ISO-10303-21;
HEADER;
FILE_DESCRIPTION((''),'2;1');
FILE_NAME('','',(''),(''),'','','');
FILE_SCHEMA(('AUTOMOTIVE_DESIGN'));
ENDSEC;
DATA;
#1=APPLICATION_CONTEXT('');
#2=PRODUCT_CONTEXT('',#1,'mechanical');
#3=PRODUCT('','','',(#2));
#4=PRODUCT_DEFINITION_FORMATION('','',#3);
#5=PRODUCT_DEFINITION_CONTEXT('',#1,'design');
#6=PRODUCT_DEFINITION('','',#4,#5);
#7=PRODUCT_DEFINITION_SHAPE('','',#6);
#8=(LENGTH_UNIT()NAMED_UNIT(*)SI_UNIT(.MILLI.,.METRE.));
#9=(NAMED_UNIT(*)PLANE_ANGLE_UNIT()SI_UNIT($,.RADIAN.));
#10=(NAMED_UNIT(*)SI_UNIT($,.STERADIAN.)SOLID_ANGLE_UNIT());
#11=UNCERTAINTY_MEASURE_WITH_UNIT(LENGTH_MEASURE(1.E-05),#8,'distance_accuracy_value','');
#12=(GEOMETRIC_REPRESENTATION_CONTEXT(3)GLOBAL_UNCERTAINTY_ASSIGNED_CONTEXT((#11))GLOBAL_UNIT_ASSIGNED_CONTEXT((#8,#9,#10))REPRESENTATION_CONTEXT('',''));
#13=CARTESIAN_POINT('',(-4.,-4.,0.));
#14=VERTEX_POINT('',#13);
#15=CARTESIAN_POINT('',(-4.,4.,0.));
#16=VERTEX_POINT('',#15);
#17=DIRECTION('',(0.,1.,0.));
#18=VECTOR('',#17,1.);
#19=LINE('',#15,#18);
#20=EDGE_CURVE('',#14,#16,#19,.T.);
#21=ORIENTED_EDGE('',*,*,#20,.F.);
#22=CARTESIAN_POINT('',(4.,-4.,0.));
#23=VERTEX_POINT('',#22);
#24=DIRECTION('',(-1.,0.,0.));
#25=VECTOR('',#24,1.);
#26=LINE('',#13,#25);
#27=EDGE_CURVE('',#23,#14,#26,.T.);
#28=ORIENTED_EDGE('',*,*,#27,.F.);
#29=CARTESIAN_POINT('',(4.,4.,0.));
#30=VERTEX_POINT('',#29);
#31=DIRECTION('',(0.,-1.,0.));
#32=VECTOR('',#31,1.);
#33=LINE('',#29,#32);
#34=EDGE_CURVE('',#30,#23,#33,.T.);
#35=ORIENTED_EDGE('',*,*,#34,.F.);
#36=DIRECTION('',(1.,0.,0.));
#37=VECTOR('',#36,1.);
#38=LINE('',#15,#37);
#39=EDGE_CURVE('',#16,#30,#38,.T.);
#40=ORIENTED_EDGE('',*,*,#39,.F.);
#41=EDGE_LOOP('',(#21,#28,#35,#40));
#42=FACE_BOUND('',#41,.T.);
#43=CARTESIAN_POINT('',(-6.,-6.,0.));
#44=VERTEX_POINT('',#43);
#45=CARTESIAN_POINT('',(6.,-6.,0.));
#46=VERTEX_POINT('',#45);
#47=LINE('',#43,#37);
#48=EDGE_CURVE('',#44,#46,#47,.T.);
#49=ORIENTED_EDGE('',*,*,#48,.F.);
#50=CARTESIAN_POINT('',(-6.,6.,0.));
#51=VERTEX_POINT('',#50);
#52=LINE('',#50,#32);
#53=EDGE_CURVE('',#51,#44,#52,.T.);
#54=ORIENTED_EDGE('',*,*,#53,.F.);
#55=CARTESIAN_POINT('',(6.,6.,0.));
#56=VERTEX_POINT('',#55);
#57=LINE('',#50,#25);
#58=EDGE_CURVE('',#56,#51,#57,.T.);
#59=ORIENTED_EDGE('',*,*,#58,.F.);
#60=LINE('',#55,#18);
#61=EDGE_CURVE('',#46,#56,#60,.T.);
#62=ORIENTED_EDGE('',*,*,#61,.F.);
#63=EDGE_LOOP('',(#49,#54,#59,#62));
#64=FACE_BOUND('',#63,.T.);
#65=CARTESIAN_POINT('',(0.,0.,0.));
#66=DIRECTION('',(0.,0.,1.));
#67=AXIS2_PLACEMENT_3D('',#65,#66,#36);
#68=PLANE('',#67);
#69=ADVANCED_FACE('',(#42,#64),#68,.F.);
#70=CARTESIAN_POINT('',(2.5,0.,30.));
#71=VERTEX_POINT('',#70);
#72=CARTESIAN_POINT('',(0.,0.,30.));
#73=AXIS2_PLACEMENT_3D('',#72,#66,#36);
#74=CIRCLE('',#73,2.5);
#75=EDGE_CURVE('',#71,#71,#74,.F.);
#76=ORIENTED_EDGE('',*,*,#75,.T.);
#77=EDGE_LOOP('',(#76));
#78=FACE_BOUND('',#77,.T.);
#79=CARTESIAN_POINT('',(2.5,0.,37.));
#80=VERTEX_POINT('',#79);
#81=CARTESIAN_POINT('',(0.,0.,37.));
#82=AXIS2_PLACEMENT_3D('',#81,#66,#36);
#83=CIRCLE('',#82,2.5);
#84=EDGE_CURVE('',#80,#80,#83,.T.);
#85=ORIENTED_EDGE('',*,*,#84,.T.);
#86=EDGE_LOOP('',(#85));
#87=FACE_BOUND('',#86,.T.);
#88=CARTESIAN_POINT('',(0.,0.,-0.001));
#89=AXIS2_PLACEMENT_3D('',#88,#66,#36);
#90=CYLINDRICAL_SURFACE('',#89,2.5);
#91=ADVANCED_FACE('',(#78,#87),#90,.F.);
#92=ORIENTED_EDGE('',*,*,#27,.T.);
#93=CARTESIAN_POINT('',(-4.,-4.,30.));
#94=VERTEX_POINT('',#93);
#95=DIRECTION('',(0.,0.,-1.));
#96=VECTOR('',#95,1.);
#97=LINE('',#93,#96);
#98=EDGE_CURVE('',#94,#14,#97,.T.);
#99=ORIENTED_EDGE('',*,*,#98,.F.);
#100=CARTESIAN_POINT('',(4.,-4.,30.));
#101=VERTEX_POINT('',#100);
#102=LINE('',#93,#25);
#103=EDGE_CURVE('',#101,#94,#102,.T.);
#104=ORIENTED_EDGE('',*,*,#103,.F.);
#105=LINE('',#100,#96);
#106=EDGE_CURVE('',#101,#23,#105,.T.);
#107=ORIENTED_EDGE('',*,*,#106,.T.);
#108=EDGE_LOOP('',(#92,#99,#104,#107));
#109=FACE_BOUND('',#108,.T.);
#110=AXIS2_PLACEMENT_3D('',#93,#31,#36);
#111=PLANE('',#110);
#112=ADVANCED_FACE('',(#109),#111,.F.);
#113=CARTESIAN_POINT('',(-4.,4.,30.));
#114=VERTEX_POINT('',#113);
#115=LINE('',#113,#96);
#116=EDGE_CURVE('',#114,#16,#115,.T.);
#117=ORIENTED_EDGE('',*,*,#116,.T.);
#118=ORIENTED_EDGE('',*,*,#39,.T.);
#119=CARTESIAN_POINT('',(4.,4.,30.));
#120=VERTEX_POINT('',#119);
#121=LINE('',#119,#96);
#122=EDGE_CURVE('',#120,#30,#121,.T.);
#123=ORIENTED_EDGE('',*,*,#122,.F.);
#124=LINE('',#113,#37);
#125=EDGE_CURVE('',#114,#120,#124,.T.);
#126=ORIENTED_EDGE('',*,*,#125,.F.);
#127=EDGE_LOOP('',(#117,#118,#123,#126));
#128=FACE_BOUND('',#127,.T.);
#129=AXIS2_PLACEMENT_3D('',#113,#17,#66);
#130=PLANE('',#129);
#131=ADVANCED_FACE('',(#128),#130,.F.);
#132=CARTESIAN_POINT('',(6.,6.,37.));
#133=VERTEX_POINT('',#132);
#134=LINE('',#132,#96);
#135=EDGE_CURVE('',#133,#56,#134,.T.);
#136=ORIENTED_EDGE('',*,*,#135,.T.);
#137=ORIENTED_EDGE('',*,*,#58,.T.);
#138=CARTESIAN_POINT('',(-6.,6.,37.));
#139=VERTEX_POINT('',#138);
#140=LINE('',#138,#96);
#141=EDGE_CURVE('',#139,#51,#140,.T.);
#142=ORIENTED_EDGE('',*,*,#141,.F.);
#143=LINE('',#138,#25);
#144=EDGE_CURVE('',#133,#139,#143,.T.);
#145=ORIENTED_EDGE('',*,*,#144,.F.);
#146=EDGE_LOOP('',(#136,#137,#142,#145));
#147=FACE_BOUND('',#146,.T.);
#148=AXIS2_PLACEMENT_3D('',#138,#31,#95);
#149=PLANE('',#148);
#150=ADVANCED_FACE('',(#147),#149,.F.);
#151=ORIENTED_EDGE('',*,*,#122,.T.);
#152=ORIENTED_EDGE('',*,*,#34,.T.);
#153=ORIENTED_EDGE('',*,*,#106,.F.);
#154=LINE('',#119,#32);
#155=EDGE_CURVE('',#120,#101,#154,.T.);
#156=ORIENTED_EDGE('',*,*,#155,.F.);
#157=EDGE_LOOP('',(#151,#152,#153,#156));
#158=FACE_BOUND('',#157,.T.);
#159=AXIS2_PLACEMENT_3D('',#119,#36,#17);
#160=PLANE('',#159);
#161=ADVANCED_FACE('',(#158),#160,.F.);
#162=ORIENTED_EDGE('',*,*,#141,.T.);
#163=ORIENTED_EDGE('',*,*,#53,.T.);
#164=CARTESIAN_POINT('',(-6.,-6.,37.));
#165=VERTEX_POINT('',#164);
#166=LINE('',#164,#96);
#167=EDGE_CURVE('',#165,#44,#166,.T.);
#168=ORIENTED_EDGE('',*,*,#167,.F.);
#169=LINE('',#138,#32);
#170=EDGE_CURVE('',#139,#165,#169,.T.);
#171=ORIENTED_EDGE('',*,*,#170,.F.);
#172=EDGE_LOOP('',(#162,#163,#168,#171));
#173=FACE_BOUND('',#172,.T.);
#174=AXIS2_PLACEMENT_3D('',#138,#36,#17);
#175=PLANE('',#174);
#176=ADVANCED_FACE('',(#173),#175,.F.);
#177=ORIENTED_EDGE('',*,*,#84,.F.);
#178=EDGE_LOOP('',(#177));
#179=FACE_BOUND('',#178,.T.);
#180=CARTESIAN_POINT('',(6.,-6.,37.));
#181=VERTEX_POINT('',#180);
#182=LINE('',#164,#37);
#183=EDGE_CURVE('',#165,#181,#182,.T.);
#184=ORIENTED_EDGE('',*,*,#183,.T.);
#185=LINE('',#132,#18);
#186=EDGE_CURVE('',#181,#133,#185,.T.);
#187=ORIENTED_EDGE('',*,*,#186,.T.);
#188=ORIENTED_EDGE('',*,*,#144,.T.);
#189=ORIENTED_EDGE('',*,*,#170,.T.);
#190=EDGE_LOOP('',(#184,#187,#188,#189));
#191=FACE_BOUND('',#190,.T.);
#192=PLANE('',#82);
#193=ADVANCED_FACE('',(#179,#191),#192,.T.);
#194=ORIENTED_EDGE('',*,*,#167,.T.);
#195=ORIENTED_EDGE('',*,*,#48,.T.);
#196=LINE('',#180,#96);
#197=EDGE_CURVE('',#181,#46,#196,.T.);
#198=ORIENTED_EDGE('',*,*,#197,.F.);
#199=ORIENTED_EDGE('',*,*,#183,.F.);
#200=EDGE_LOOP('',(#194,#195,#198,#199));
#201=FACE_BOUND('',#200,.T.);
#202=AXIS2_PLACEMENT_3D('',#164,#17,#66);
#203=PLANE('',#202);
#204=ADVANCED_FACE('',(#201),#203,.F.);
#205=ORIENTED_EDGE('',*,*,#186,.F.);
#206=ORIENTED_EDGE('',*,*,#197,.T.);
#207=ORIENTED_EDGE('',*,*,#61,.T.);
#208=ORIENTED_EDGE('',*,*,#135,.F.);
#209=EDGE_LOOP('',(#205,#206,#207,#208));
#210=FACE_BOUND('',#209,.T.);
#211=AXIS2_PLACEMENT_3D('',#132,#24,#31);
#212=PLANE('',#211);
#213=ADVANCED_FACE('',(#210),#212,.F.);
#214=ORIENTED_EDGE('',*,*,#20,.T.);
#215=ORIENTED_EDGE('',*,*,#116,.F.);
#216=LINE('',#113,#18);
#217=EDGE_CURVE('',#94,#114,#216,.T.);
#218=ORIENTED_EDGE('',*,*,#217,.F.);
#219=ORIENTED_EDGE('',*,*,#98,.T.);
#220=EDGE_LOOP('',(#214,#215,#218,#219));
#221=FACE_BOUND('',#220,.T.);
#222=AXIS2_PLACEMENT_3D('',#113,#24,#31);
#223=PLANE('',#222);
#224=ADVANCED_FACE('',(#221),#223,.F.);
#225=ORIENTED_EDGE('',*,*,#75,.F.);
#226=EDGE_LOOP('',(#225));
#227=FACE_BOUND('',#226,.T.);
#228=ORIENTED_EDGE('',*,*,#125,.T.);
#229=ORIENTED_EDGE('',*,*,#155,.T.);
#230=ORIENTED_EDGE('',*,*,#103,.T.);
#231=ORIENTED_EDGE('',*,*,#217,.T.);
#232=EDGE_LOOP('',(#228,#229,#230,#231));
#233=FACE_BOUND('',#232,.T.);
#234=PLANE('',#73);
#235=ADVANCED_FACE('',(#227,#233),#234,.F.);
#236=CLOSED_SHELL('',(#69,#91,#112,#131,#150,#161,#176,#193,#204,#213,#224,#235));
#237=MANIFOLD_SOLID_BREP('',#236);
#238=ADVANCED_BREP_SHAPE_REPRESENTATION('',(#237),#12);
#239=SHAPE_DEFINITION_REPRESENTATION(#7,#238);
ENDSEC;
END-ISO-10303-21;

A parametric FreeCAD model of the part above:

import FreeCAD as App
import Part
import Sketcher
from FreeCAD import Vector
Q = App.Units.Quantity

doc = App.newDocument("Part")
body = doc.addObject("PartDesign::Body", "Body")

sketch1 = body.newObject("Sketcher::SketchObject", "Sketch")
sketch1.AttachmentSupport = (doc.getObject("XY_Plane"), [""])
sketch1.MapMode = "FlatFace"
sketch1.addGeometry(Part.LineSegment(Vector(-6, 6, 0), Vector(-6, -6, 0)), False)
sketch1.addGeometry(Part.LineSegment(Vector(-6, -6, 0), Vector(6, -6, 0)), False)
sketch1.addGeometry(Part.LineSegment(Vector(6, -6, 0), Vector(6, 6, 0)), False)
sketch1.addGeometry(Part.LineSegment(Vector(6, 6, 0), Vector(-6, 6, 0)), False)
sketch1.addConstraint(Sketcher.Constraint("Coincident", 0, 2, 1, 1))
sketch1.addConstraint(Sketcher.Constraint("Coincident", 1, 2, 2, 1))
sketch1.addConstraint(Sketcher.Constraint("Coincident", 2, 2, 3, 1))
sketch1.addConstraint(Sketcher.Constraint("Coincident", 3, 2, 0, 1))
sketch1.addConstraint(Sketcher.Constraint("Vertical", 0))
sketch1.addConstraint(Sketcher.Constraint("Horizontal", 1))
sketch1.addConstraint(Sketcher.Constraint("Vertical", 2))
sketch1.addConstraint(Sketcher.Constraint("Horizontal", 3))
sketch1.addConstraint(Sketcher.Constraint("Symmetric", 0, 2, 2, 2, -1, 1))
sketch1.addConstraint(Sketcher.Constraint("Equal", 3, 0))
sketch1.addConstraint(Sketcher.Constraint("DistanceX", 1, 1, 1, 2, Q("12 mm")))
pad1 = body.newObject("PartDesign::Pad", "Pad")
pad1.Profile = sketch1
pad1.Length = 37

sketch2 = body.newObject("Sketcher::SketchObject", "Sketch001")
sketch2.AttachmentSupport = (doc.getObject("XY_Plane"), [""])
sketch2.MapMode = "FlatFace"
sketch2.addGeometry(Part.LineSegment(Vector(4, 4, 0), Vector(4, -4, 0)), False)
sketch2.addGeometry(Part.LineSegment(Vector(4, -4, 0), Vector(-4, -4, 0)), False)
sketch2.addGeometry(Part.LineSegment(Vector(-4, -4, 0), Vector(-4, 4, 0)), False)
sketch2.addGeometry(Part.LineSegment(Vector(-4, 4, 0), Vector(4, 4, 0)), False)
sketch2.addConstraint(Sketcher.Constraint("Coincident", 0, 2, 1, 1))
sketch2.addConstraint(Sketcher.Constraint("Coincident", 1, 2, 2, 1))
sketch2.addConstraint(Sketcher.Constraint("Coincident", 2, 2, 3, 1))
sketch2.addConstraint(Sketcher.Constraint("Coincident", 3, 2, 0, 1))
sketch2.addConstraint(Sketcher.Constraint("Vertical", 0))
sketch2.addConstraint(Sketcher.Constraint("Horizontal", 1))
sketch2.addConstraint(Sketcher.Constraint("Vertical", 2))
sketch2.addConstraint(Sketcher.Constraint("Horizontal", 3))
sketch2.addConstraint(Sketcher.Constraint("Symmetric", 0, 2, 2, 2, -1, 1))
sketch2.addConstraint(Sketcher.Constraint("Equal", 3, 0))
sketch2.addConstraint(Sketcher.Constraint("DistanceX", 1, 2, 1, 1, Q("8 mm")))
pocket1 = body.newObject("PartDesign::Pocket", "Pocket")
pocket1.Profile = sketch2
pocket1.Length = 30
pocket1.Reversed = True

sketch3 = body.newObject("Sketcher::SketchObject", "Sketch002")
sketch3.AttachmentSupport = (doc.getObject("XY_Plane"), [""])
sketch3.MapMode = "FlatFace"
sketch3.AttachmentOffset = App.Placement(Vector(0, 0, 37), App.Rotation())
sketch3.addGeometry(Part.Circle(Vector(0, 0, 0), Vector(0, 0, 1), 2.5), False)
sketch3.addConstraint(Sketcher.Constraint("Coincident", 0, 3, -1, 1))
sketch3.addConstraint(Sketcher.Constraint("Diameter", 0, Q("5 mm")))
pocket2 = body.newObject("PartDesign::Pocket", "Pocket001")
pocket2.Profile = sketch3
pocket2.Type = "UpToFirst"

doc.recompute()
